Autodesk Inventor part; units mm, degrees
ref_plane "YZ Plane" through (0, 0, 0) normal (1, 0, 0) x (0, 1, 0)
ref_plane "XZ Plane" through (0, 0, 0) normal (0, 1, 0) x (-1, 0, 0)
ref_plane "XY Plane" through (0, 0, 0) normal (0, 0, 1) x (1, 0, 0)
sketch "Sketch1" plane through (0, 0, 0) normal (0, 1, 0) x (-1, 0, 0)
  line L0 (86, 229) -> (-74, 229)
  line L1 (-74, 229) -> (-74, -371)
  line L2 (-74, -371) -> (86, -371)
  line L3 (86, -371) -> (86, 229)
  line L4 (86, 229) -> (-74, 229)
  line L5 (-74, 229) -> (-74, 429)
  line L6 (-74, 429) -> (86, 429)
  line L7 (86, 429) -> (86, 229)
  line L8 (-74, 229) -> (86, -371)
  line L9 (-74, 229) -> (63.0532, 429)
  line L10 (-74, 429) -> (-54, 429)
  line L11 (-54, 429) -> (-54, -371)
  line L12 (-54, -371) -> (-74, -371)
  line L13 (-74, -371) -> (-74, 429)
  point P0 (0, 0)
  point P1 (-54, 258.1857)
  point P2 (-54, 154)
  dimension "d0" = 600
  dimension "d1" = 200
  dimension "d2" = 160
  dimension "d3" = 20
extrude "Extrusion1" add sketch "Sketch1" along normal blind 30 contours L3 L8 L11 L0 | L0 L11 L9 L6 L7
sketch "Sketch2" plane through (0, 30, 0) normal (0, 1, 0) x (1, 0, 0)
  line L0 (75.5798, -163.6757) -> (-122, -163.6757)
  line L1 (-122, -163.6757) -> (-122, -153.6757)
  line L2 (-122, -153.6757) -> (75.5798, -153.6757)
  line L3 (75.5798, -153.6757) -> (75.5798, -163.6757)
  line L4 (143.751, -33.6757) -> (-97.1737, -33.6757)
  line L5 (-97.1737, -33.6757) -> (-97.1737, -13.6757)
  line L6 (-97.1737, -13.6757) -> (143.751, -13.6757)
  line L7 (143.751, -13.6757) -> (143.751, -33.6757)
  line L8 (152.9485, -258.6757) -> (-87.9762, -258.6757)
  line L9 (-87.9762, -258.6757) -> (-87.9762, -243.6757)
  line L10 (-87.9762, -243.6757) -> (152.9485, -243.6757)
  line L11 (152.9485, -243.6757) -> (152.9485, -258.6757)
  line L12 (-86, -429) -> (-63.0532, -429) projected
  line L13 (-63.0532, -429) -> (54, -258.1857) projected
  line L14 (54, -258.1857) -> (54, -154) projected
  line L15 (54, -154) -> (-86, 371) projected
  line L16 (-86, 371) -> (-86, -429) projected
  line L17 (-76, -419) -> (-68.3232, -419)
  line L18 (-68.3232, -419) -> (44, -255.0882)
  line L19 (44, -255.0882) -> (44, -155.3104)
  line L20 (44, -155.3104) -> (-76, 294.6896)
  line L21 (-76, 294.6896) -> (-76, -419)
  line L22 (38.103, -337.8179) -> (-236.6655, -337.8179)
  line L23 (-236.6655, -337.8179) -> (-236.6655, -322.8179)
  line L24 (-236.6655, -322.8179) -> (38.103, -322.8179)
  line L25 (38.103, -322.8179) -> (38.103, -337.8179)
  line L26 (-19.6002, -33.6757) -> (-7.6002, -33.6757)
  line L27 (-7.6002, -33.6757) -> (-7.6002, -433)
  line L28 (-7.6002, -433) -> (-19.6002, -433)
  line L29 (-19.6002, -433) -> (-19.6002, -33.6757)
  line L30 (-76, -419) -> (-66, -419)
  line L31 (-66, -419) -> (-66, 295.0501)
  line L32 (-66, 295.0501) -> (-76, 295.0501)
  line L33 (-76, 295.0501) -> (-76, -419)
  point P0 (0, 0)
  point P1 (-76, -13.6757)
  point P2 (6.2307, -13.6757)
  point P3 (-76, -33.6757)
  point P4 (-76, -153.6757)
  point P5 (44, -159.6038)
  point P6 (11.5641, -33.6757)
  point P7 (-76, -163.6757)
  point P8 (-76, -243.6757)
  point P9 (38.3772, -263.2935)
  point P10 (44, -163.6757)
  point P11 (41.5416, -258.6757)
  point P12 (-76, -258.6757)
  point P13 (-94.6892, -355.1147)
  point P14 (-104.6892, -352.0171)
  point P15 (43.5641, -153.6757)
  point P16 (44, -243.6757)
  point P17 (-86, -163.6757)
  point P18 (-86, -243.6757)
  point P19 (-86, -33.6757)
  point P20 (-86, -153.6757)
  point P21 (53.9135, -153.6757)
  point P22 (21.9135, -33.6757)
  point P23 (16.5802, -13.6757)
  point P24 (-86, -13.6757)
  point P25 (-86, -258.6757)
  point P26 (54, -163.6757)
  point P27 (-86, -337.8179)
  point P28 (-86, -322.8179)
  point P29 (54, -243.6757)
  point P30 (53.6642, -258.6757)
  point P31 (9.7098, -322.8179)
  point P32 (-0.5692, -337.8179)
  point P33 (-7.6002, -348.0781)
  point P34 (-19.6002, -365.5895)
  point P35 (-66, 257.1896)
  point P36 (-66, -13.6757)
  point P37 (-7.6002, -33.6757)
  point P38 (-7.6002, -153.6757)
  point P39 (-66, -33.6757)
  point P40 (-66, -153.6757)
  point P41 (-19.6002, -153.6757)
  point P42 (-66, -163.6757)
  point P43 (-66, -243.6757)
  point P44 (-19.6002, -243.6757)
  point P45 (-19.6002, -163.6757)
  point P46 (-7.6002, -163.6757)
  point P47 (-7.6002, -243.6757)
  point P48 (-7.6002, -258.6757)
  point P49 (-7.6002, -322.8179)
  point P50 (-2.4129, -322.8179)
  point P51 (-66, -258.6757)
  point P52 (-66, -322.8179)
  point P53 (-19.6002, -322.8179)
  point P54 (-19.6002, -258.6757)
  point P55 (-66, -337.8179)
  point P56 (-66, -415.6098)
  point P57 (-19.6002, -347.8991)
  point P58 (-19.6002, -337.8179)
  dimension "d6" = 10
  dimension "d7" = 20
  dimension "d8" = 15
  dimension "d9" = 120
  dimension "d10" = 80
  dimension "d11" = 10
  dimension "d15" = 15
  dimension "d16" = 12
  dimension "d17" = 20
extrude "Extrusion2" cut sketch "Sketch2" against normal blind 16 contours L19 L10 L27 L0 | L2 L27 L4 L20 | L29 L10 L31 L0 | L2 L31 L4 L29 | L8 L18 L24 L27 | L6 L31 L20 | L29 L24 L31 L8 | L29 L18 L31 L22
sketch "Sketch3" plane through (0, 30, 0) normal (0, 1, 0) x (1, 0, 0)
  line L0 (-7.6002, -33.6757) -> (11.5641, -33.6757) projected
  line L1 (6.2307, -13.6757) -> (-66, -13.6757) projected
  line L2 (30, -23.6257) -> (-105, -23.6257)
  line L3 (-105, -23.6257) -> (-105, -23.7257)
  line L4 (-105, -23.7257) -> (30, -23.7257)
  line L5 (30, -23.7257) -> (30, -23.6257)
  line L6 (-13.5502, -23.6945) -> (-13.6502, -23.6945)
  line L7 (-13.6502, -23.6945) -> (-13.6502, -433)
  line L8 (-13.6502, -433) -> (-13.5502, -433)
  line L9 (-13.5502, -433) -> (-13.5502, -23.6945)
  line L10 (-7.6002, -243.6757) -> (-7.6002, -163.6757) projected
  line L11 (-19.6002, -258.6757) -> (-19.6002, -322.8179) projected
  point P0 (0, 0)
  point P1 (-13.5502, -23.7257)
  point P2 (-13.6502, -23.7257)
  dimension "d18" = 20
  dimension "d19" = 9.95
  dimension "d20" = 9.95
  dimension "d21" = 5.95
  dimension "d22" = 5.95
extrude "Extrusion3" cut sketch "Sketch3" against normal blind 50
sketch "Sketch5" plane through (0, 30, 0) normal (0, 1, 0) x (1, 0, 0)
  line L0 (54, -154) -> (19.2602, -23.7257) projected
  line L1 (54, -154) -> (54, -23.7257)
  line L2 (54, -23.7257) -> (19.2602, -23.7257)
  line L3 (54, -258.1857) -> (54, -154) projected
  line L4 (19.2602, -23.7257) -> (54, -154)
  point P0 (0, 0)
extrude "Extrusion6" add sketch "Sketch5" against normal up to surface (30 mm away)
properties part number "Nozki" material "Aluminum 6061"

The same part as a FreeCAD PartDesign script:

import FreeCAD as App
import Part
import Sketcher

V = App.Vector
Q = App.Units.Quantity

doc = App.newDocument("Part")
params = doc.addObject("Spreadsheet::Sheet", "Params")
for row, (alias, value) in enumerate([
    ("sketch1_height", "800 mm"),
    ("pad1_length", "30 mm"),
    ("sketch2_height", "80 mm"),
    ("sketch2_height2", "120 mm"),
    ("pocket1_length", "16 mm"),
    ("sketch3_width", "135 mm"),
    ("sketch3_width2", "0.1 mm"),
    ("pocket2_length", "50 mm"),
    ("pad2_length", "30 mm"),
], start=1):
    params.set(f"A{row}", alias)
    params.set(f"B{row}", "=" + value)
    params.setAlias(f"B{row}", alias)

body = doc.addObject("PartDesign::Body", "Body")
body.AllowCompound = True

# Sketch on XZ plane
sketch1 = body.newObject("Sketcher::SketchObject", "Sketch")
sketch1.AttachmentSupport = (doc.getObject("XZ_Plane"), [""])
sketch1.MapMode = "FlatFace"
sketch1.addGeometry([
    Part.LineSegment(V(-86, -371, 0), V(-86, 429, 0)),  # 0
    Part.LineSegment(V(-86, 429, 0), V(-63, 429, 0)),  # 1
    Part.LineSegment(V(-63, 429, 0), V(54, 258, 0)),  # 2
    Part.LineSegment(V(54, 258, 0), V(54, 154, 0)),  # 3
    Part.LineSegment(V(54, 154, 0), V(-86, -371, 0)),  # 4
], False)
sketch1.addConstraint([
    Sketcher.Constraint("Coincident", 0, 2, 1, 1),
    Sketcher.Constraint("Coincident", 1, 2, 2, 1),
    Sketcher.Constraint("Coincident", 2, 2, 3, 1),
    Sketcher.Constraint("Coincident", 3, 2, 4, 1),
    Sketcher.Constraint("Coincident", 4, 2, 0, 1),
    Sketcher.Constraint("Vertical", 0),
    Sketcher.Constraint("Horizontal", 1),
    Sketcher.Constraint("Vertical", 3),
    Sketcher.Constraint("DistanceY", 0, 1, 0, 2, Q("800 mm")),
    Sketcher.Constraint("DistanceX", 0, 2, -1, 1, Q("86 mm")),
    Sketcher.Constraint("DistanceY", -1, 1, 0, 2, Q("429 mm")),
    Sketcher.Constraint("DistanceX", -1, 1, 2, 2, Q("54 mm")),
    Sketcher.Constraint("DistanceY", -1, 1, 3, 2, Q("154 mm")),
    Sketcher.Constraint("DistanceX", 1, 1, 1, 2, Q("22.9468 mm")),
    Sketcher.Constraint("DistanceY", 3, 2, 3, 1, Q("104.1857 mm")),
])
sketch1.setExpression("Constraints[8]", "Params.sketch1_height")
pad1 = body.newObject("PartDesign::Pad", "Pad")
pad1.Profile = sketch1
pad1.setExpression("Length", "Params.pad1_length")
pad1.Reversed = True

# Sketch on XZ plane
sketch2 = body.newObject("Sketcher::SketchObject", "Sketch001")
sketch2.AttachmentSupport = (doc.getObject("XZ_Plane"), [""])
sketch2.MapMode = "FlatFace"
sketch2.AttachmentOffset = App.Placement(V(0, 0, -30), App.Rotation())
sketch2.addGeometry([
    Part.LineSegment(V(44, 244, 0), V(44, 164, 0)),  # 0
    Part.LineSegment(V(44, 164, 0), V(-8, 164, 0)),  # 1
    Part.LineSegment(V(-8, 164, 0), V(-8, 244, 0)),  # 2
    Part.LineSegment(V(-8, 244, 0), V(44, 244, 0)),  # 3
    Part.LineSegment(V(-8, 154, 0), V(44, 154, 0)),  # 4
    Part.LineSegment(V(44, 154, 0), V(12, 34, 0)),  # 5
    Part.LineSegment(V(12, 34, 0), V(-8, 34, 0)),  # 6
    Part.LineSegment(V(-8, 34, 0), V(-8, 154, 0)),  # 7
    Part.LineSegment(V(-20, 244, 0), V(-20, 164, 0)),  # 8
    Part.LineSegment(V(-20, 164, 0), V(-66, 164, 0)),  # 9
    Part.LineSegment(V(-66, 164, 0), V(-66, 244, 0)),  # 10
    Part.LineSegment(V(-66, 244, 0), V(-20, 244, 0)),  # 11
    Part.LineSegment(V(-66, 154, 0), V(-20, 154, 0)),  # 12
    Part.LineSegment(V(-20, 154, 0), V(-20, 34, 0)),  # 13
    Part.LineSegment(V(-20, 34, 0), V(-66, 34, 0)),  # 14
    Part.LineSegment(V(-66, 34, 0), V(-66, 154, 0)),  # 15
    Part.LineSegment(V(42, 259, 0), V(-8, 259, 0)),  # 16
    Part.LineSegment(V(-8, 259, 0), V(-8, 323, 0)),  # 17
    Part.LineSegment(V(-8, 323, 0), V(-2, 323, 0)),  # 18
    Part.LineSegment(V(-2, 323, 0), V(42, 259, 0)),  # 19
    Part.LineSegment(V(-66, 14, 0), V(6, 14, 0)),  # 20
    Part.LineSegment(V(6, 14, 0), V(-66, -257, 0)),  # 21
    Part.LineSegment(V(-66, -257, 0), V(-66, 14, 0)),  # 22
    Part.LineSegment(V(-20, 323, 0), V(-20, 259, 0)),  # 23
    Part.LineSegment(V(-20, 259, 0), V(-66, 259, 0)),  # 24
    Part.LineSegment(V(-66, 259, 0), V(-66, 323, 0)),  # 25
    Part.LineSegment(V(-66, 323, 0), V(-20, 323, 0)),  # 26
    Part.LineSegment(V(-20, 348, 0), V(-20, 338, 0)),  # 27
    Part.LineSegment(V(-20, 338, 0), V(-66, 338, 0)),  # 28
    Part.LineSegment(V(-66, 338, 0), V(-66, 416, 0)),  # 29
    Part.LineSegment(V(-66, 416, 0), V(-20, 348, 0)),  # 30
], False)
sketch2.addConstraint([
    Sketcher.Constraint("Coincident", 0, 2, 1, 1),
    Sketcher.Constraint("Coincident", 1, 2, 2, 1),
    Sketcher.Constraint("Coincident", 2, 2, 3, 1),
    Sketcher.Constraint("Coincident", 3, 2, 0, 1),
    Sketcher.Constraint("Coincident", 4, 2, 5, 1),
    Sketcher.Constraint("Coincident", 5, 2, 6, 1),
    Sketcher.Constraint("Coincident", 6, 2, 7, 1),
    Sketcher.Constraint("Coincident", 7, 2, 4, 1),
    Sketcher.Constraint("Coincident", 8, 2, 9, 1),
    Sketcher.Constraint("Coincident", 9, 2, 10, 1),
    Sketcher.Constraint("Coincident", 10, 2, 11, 1),
    Sketcher.Constraint("Coincident", 11, 2, 8, 1),
    Sketcher.Constraint("Coincident", 12, 2, 13, 1),
    Sketcher.Constraint("Coincident", 13, 2, 14, 1),
    Sketcher.Constraint("Coincident", 14, 2, 15, 1),
    Sketcher.Constraint("Coincident", 15, 2, 12, 1),
    Sketcher.Constraint("Coincident", 16, 2, 17, 1),
    Sketcher.Constraint("Coincident", 17, 2, 18, 1),
    Sketcher.Constraint("Coincident", 18, 2, 19, 1),
    Sketcher.Constraint("Coincident", 19, 2, 16, 1),
    Sketcher.Constraint("Coincident", 20, 2, 21, 1),
    Sketcher.Constraint("Coincident", 21, 2, 22, 1),
    Sketcher.Constraint("Coincident", 22, 2, 20, 1),
    Sketcher.Constraint("Coincident", 23, 2, 24, 1),
    Sketcher.Constraint("Coincident", 24, 2, 25, 1),
    Sketcher.Constraint("Coincident", 25, 2, 26, 1),
    Sketcher.Constraint("Coincident", 26, 2, 23, 1),
    Sketcher.Constraint("Coincident", 27, 2, 28, 1),
    Sketcher.Constraint("Coincident", 28, 2, 29, 1),
    Sketcher.Constraint("Coincident", 29, 2, 30, 1),
    Sketcher.Constraint("Coincident", 30, 2, 27, 1),
    Sketcher.Constraint("Vertical", 0),
    Sketcher.Constraint("Horizontal", 1),
    Sketcher.Constraint("Vertical", 2),
    Sketcher.Constraint("Horizontal", 3),
    Sketcher.Constraint("Horizontal", 4),
    Sketcher.Constraint("Horizontal", 6),
    Sketcher.Constraint("Vertical", 7),
    Sketcher.Constraint("Vertical", 8),
    Sketcher.Constraint("Horizontal", 9),
    Sketcher.Constraint("Vertical", 10),
    Sketcher.Constraint("Horizontal", 11),
    Sketcher.Constraint("Horizontal", 12),
    Sketcher.Constraint("Vertical", 13),
    Sketcher.Constraint("Horizontal", 14),
    Sketcher.Constraint("Vertical", 15),
    Sketcher.Constraint("Horizontal", 16),
    Sketcher.Constraint("Vertical", 17),
    Sketcher.Constraint("Horizontal", 18),
    Sketcher.Constraint("Horizontal", 20),
    Sketcher.Constraint("Vertical", 22),
    Sketcher.Constraint("Vertical", 23),
    Sketcher.Constraint("Horizontal", 24),
    Sketcher.Constraint("Vertical", 25),
    Sketcher.Constraint("Horizontal", 26),
    Sketcher.Constraint("Vertical", 27),
    Sketcher.Constraint("Horizontal", 28),
    Sketcher.Constraint("Vertical", 29),
    Sketcher.Constraint("Parallel", 5, 21),
    Sketcher.Constraint("Parallel", 19, 30),
    Sketcher.Constraint("Horizontal", 1, 2, 8, 2),
    Sketcher.Constraint("Horizontal", 3, 2, 10, 2),
    Sketcher.Constraint("Horizontal", 7, 2, 12, 2),
    Sketcher.Constraint("Horizontal", 6, 2, 13, 2),
    Sketcher.Constraint("Horizontal", 19, 2, 23, 2),
    Sketcher.Constraint("Horizontal", 18, 2, 25, 2),
    Sketcher.Constraint("Vertical", 2, 2, 6, 2),
    Sketcher.Constraint("Vertical", 11, 2, 12, 2),
    Sketcher.Constraint("Vertical", 10, 2, 14, 2),
    Sketcher.Constraint("Vertical", 7, 2, 16, 2),
    Sketcher.Constraint("Vertical", 15, 2, 21, 2),
    Sketcher.Constraint("Vertical", 13, 2, 23, 2),
    Sketcher.Constraint("Vertical", 22, 2, 24, 2),
    Sketcher.Constraint("Vertical", 26, 2, 27, 2),
    Sketcher.Constraint("Vertical", 25, 2, 28, 2),
    Sketcher.Constraint("DistanceY", 0, 2, 0, 1, Q("80 mm")),
    Sketcher.Constraint("DistanceY", 7, 1, 7, 2, Q("120 mm")),
    Sketcher.Constraint("DistanceY", 4, 2, 0, 2, Q("10 mm")),
    Sketcher.Constraint("DistanceX", 8, 2, 1, 2, Q("12 mm")),
    Sketcher.Constraint("DistanceY", 2, 2, 16, 2, Q("15 mm")),
    Sketcher.Constraint("DistanceY", 20, 2, 5, 2, Q("20 mm")),
    Sketcher.Constraint("DistanceY", 26, 2, 27, 2, Q("15 mm")),
    Sketcher.Constraint("DistanceX", -1, 1, 0, 2, Q("44 mm")),
    Sketcher.Constraint("DistanceX", 9, 2, -1, 1, Q("66 mm")),
    Sketcher.Constraint("DistanceX", 5, 2, 4, 2, Q("32 mm")),
    Sketcher.Constraint("DistanceY", 29, 1, 29, 2, Q("77.792 mm")),
    Sketcher.Constraint("DistanceX", 1, 2, 1, 1, Q("51.6002 mm")),
    Sketcher.Constraint("DistanceX", 4, 1, 4, 2, Q("51.1643 mm")),
    Sketcher.Constraint("DistanceX", 16, 2, 16, 1, Q("49.1418 mm")),
    Sketcher.Constraint("DistanceX", 18, 1, 18, 2, Q("5.1873 mm")),
    Sketcher.Constraint("DistanceX", 20, 1, 20, 2, Q("72.2307 mm")),
    Sketcher.Constraint("DistanceY", 17, 1, 17, 2, Q("64.1422 mm")),
    Sketcher.Constraint("DistanceY", -1, 1, 17, 2, Q("322.818 mm")),
])
sketch2.setExpression("Constraints[75]", "Params.sketch2_height")
sketch2.setExpression("Constraints[76]", "Params.sketch2_height2")
pocket1 = body.newObject("PartDesign::Pocket", "Pocket")
pocket1.Profile = sketch2
pocket1.setExpression("Length", "Params.pocket1_length")
pocket1.Reversed = True

# Sketch on XZ plane
sketch3 = body.newObject("Sketcher::SketchObject", "Sketch002")
sketch3.AttachmentSupport = (doc.getObject("XZ_Plane"), [""])
sketch3.MapMode = "FlatFace"
sketch3.AttachmentOffset = App.Placement(V(0, 0, -30), App.Rotation())
sketch3.addGeometry([
    Part.LineSegment(V(30, 23.73, 0), V(30, 23.63, 0)),  # 0
    Part.LineSegment(V(30, 23.63, 0), V(-105, 23.63, 0)),  # 1
    Part.LineSegment(V(-105, 23.63, 0), V(-105, 23.73, 0)),  # 2
    Part.LineSegment(V(-105, 23.73, 0), V(-13.65, 23.73, 0)),  # 3
    Part.LineSegment(V(-13.65, 23.73, 0), V(-13.65, 433, 0)),  # 4
    Part.LineSegment(V(-13.65, 433, 0), V(-13.55, 433, 0)),  # 5
    Part.LineSegment(V(-13.55, 433, 0), V(-13.55, 23.73, 0)),  # 6
    Part.LineSegment(V(-13.55, 23.73, 0), V(30, 23.73, 0)),  # 7
], False)
sketch3.addConstraint([
    Sketcher.Constraint("Coincident", 0, 2, 1, 1),
    Sketcher.Constraint("Coincident", 1, 2, 2, 1),
    Sketcher.Constraint("Coincident", 2, 2, 3, 1),
    Sketcher.Constraint("Coincident", 3, 2, 4, 1),
    Sketcher.Constraint("Coincident", 4, 2, 5, 1),
    Sketcher.Constraint("Coincident", 5, 2, 6, 1),
    Sketcher.Constraint("Coincident", 6, 2, 7, 1),
    Sketcher.Constraint("Coincident", 7, 2, 0, 1),
    Sketcher.Constraint("Vertical", 0),
    Sketcher.Constraint("Horizontal", 1),
    Sketcher.Constraint("Vertical", 2),
    Sketcher.Constraint("Horizontal", 3),
    Sketcher.Constraint("Vertical", 4),
    Sketcher.Constraint("Horizontal", 5),
    Sketcher.Constraint("Vertical", 6),
    Sketcher.Constraint("Horizontal", 7),
    Sketcher.Constraint("Horizontal", 3, 2, 6, 2),
    Sketcher.Constraint("Equal", 5, 0),
    Sketcher.Constraint("DistanceX", 1, 2, 1, 1, Q("135 mm")),
    Sketcher.Constraint("DistanceX", 5, 1, 5, 2, Q("0.1 mm")),
    Sketcher.Constraint("DistanceX", -1, 1, 0, 2, Q("30 mm")),
    Sketcher.Constraint("DistanceY", -1, 1, 4, 2, Q("433 mm")),
    Sketcher.Constraint("DistanceX", 3, 1, 3, 2, Q("91.3498 mm")),
    Sketcher.Constraint("DistanceY", 4, 1, 4, 2, Q("409.2743 mm")),
])
sketch3.setExpression("Constraints[18]", "Params.sketch3_width")
sketch3.setExpression("Constraints[19]", "Params.sketch3_width2")
pocket2 = body.newObject("PartDesign::Pocket", "Pocket001")
pocket2.Profile = sketch3
pocket2.setExpression("Length", "Params.pocket2_length")
pocket2.Reversed = True

# Sketch on XZ plane
sketch4 = body.newObject("Sketcher::SketchObject", "Sketch003")
sketch4.AttachmentSupport = (doc.getObject("XZ_Plane"), [""])
sketch4.MapMode = "FlatFace"
sketch4.AttachmentOffset = App.Placement(V(0, 0, -30), App.Rotation())
sketch4.addGeometry([
    Part.LineSegment(V(19, 24, 0), V(54, 154, 0)),
    Part.LineSegment(V(54, 154, 0), V(54, 24, 0)),
    Part.LineSegment(V(54, 24, 0), V(19, 24, 0)),
], False)
sketch4.addConstraint([
    Sketcher.Constraint("Coincident", 0, 2, 1, 1),
    Sketcher.Constraint("Coincident", 1, 2, 2, 1),
    Sketcher.Constraint("Coincident", 2, 2, 0, 1),
    Sketcher.Constraint("Vertical", 1),
    Sketcher.Constraint("Horizontal", 2),
    Sketcher.Constraint("DistanceX", -1, 1, 0, 2, Q("54 mm")),
    Sketcher.Constraint("DistanceY", -1, 1, 0, 2, Q("154 mm")),
    Sketcher.Constraint("DistanceX", 2, 2, 2, 1, Q("34.7398 mm")),
    Sketcher.Constraint("DistanceY", 1, 2, 1, 1, Q("130.2743 mm")),
])
pad2 = body.newObject("PartDesign::Pad", "Pad001")
pad2.Profile = sketch4
pad2.setExpression("Length", "Params.pad2_length")

doc.recompute()
